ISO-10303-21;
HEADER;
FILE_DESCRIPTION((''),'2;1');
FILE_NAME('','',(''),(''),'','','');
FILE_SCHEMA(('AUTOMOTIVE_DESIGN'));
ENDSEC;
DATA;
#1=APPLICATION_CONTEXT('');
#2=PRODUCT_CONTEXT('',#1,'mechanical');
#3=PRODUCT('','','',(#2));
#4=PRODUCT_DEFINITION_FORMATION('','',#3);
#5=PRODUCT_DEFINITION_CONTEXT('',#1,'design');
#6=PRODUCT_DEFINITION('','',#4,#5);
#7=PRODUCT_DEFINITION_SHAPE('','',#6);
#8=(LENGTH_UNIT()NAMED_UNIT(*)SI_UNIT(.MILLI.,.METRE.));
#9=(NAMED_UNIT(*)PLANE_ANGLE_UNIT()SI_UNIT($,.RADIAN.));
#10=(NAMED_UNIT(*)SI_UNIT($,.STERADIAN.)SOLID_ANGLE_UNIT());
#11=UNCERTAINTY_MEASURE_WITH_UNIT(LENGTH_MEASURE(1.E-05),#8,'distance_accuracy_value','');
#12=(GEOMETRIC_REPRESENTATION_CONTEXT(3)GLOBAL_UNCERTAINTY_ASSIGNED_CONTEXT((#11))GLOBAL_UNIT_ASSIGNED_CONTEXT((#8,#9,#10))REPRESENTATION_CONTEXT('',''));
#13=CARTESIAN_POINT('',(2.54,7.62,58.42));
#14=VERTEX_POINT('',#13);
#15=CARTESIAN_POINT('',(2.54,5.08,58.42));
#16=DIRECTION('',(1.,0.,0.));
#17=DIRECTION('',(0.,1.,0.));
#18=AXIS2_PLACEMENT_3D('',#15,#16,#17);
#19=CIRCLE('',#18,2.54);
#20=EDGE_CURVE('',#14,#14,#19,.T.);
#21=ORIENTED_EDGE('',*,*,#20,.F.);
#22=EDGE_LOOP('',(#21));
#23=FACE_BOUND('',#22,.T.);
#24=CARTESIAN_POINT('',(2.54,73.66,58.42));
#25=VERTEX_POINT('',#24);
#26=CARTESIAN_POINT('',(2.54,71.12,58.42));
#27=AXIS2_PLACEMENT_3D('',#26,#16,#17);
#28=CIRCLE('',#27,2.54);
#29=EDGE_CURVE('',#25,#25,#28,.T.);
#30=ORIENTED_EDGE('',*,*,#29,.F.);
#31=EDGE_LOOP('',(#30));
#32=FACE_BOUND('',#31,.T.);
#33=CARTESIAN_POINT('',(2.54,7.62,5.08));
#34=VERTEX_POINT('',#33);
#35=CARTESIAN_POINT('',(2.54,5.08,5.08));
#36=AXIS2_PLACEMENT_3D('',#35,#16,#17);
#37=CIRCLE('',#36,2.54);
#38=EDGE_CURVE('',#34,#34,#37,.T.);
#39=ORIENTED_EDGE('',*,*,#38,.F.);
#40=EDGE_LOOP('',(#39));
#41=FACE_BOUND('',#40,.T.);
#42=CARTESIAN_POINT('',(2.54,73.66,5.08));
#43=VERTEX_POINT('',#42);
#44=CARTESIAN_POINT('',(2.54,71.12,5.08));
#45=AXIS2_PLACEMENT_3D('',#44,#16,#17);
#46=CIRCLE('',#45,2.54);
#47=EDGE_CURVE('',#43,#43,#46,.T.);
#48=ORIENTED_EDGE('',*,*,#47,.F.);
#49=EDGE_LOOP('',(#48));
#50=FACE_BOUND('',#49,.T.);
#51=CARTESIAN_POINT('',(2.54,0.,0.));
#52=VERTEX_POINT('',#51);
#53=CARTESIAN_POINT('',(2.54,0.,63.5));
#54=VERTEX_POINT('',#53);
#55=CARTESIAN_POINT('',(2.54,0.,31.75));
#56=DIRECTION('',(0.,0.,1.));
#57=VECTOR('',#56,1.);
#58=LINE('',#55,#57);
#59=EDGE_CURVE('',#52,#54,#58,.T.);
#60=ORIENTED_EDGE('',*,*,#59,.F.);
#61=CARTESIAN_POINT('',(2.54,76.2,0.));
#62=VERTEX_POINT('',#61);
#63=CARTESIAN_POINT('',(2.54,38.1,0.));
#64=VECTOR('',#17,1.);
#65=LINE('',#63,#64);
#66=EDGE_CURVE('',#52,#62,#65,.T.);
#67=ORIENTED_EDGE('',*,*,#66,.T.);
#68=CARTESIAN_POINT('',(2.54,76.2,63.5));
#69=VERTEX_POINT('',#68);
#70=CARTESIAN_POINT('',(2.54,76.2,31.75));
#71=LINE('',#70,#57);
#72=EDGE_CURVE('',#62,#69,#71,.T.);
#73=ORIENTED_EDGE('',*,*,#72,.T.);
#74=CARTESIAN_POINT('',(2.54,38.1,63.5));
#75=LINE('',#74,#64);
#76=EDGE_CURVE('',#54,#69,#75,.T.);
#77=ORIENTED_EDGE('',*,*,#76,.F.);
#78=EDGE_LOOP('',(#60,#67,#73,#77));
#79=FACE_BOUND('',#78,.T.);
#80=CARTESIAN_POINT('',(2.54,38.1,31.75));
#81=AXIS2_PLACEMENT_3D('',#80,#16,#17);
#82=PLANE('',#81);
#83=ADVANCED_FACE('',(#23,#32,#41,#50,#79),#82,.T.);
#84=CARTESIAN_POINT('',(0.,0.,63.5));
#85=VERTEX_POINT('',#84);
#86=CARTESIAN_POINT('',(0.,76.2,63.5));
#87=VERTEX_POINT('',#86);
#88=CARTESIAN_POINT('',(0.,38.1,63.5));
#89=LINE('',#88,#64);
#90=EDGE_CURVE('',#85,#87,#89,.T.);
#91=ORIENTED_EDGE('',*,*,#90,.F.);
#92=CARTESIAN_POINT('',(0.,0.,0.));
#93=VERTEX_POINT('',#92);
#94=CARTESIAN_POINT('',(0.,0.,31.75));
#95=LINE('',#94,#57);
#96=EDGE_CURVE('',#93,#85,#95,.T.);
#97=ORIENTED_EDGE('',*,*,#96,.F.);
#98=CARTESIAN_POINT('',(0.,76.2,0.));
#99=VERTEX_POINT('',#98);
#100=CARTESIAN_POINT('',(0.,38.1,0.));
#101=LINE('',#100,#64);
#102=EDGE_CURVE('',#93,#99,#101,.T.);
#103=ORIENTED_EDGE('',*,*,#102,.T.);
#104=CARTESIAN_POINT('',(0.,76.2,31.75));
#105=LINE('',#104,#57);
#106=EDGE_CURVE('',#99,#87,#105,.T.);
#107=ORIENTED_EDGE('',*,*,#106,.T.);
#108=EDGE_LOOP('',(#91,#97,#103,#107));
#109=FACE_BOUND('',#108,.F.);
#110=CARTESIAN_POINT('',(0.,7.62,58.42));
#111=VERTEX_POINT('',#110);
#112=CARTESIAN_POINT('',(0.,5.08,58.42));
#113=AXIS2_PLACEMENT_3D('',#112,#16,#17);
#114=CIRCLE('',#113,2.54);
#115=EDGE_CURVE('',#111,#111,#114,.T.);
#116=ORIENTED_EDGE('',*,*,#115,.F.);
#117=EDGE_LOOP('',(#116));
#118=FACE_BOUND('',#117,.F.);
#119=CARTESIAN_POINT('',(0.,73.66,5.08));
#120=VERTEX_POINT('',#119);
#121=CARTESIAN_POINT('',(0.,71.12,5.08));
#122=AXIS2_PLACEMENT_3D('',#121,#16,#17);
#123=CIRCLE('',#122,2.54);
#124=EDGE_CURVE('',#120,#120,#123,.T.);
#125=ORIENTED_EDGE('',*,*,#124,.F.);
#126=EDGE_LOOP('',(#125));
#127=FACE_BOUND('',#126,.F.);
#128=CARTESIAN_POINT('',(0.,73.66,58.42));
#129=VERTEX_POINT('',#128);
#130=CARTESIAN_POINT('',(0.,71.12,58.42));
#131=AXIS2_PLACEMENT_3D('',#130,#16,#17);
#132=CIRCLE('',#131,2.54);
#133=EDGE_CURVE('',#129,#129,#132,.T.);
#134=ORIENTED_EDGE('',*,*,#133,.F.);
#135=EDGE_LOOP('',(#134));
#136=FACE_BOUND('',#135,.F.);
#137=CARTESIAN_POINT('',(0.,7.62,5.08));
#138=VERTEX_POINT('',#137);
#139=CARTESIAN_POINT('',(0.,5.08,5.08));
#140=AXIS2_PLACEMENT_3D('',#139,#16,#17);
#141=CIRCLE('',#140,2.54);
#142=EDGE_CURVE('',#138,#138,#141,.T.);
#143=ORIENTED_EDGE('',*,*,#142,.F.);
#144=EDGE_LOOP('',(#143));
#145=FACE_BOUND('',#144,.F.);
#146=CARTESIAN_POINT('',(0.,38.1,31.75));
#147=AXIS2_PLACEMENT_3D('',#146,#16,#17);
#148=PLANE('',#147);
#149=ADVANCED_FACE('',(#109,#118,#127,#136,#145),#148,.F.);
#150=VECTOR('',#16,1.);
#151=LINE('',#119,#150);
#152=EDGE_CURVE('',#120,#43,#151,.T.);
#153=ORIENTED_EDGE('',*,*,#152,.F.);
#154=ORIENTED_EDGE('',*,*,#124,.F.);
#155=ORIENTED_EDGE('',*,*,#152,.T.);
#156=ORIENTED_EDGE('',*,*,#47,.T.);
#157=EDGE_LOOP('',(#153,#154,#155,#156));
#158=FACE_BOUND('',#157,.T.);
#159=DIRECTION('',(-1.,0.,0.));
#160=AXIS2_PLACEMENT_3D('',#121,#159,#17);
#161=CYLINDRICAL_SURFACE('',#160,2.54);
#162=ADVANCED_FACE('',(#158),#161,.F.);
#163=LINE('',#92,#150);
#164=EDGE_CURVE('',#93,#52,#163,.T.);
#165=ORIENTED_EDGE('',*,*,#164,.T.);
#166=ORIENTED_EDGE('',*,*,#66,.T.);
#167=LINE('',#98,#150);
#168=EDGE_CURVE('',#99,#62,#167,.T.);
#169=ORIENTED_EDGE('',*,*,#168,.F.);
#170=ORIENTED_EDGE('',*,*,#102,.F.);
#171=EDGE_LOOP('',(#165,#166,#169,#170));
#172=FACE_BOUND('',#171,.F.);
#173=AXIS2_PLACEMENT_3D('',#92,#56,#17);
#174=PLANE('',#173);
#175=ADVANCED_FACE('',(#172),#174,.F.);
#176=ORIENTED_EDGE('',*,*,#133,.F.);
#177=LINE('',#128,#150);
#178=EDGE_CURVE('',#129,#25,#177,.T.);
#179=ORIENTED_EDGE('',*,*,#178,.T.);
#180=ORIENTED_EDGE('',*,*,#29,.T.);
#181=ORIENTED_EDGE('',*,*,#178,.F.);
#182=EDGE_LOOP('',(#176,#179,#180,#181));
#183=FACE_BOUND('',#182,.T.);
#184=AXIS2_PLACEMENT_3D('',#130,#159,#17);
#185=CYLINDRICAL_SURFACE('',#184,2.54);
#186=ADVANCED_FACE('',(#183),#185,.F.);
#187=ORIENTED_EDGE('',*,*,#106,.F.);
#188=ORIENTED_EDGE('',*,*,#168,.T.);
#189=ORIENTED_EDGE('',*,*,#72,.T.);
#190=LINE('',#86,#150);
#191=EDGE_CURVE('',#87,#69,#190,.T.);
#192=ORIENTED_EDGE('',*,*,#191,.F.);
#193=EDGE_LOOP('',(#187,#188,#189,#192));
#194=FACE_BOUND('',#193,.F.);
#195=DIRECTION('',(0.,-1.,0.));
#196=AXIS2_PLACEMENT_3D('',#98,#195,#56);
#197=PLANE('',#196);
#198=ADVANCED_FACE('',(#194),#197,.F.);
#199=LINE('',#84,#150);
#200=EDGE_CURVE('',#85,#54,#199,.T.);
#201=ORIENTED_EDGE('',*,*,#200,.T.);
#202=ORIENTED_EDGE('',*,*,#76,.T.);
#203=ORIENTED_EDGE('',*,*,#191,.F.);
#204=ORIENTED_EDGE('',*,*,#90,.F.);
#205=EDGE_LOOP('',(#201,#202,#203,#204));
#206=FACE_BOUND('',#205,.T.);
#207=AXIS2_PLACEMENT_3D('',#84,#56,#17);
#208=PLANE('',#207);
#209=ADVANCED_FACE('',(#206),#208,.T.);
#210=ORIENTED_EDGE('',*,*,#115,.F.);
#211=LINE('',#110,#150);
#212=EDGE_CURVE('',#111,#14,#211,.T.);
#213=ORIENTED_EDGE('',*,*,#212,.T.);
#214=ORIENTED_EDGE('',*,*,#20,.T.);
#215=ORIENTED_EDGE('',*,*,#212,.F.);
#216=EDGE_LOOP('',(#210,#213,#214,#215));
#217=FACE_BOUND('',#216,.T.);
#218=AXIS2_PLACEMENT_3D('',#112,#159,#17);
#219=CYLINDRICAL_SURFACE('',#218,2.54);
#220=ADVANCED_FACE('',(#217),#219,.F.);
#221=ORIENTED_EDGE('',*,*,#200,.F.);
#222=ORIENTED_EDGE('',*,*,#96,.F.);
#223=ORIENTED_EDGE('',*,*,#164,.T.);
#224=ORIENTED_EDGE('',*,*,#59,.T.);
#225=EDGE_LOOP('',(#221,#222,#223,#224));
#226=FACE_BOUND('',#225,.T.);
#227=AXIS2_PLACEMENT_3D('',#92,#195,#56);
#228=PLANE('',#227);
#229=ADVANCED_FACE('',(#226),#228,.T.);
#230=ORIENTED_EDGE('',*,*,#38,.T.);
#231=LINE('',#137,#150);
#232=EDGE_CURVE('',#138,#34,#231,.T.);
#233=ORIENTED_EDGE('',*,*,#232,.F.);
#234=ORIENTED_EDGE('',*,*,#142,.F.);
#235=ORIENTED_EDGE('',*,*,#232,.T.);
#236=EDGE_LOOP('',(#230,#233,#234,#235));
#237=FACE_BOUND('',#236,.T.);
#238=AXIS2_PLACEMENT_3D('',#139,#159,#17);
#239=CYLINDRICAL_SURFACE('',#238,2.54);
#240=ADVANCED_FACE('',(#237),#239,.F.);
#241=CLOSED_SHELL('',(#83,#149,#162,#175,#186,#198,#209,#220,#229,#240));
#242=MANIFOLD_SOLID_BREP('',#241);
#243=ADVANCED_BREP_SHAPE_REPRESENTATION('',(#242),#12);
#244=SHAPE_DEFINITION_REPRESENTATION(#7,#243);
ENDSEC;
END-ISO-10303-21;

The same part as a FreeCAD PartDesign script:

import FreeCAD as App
import Part
import Sketcher

V = App.Vector
Q = App.Units.Quantity

doc = App.newDocument("Part")
body = doc.addObject("PartDesign::Body", "Body")

# Sketch on YZ plane
sketch1 = body.newObject("Sketcher::SketchObject", "Sketch")
sketch1.AttachmentSupport = (doc.getObject("YZ_Plane"), [""])
sketch1.MapMode = "FlatFace"
sketch1.addGeometry(Part.LineSegment(V(0, 63.5, 0), V(0, 0, 0)), False)
sketch1.addGeometry(Part.LineSegment(V(0, 0, 0), V(76.2, 0, 0)), False)
sketch1.addGeometry(Part.LineSegment(V(76.2, 0, 0), V(76.2, 63.5, 0)), False)
sketch1.addGeometry(Part.LineSegment(V(76.2, 63.5, 0), V(0, 63.5, 0)), False)
sketch1.addGeometry(Part.Circle(V(5.1, 5.1, 0), V(0, 0, 1), 2.5), False)
sketch1.addGeometry(Part.Circle(V(71.1, 5.1, 0), V(0, 0, 1), 2.5), False)
sketch1.addGeometry(Part.Circle(V(5.1, 58.4, 0), V(0, 0, 1), 2.5), False)
sketch1.addGeometry(Part.Circle(V(71.1, 58.4, 0), V(0, 0, 1), 2.5), False)
sketch1.addConstraint(Sketcher.Constraint("Coincident", 0, 2, 1, 1))
sketch1.addConstraint(Sketcher.Constraint("Coincident", 1, 2, 2, 1))
sketch1.addConstraint(Sketcher.Constraint("Coincident", 2, 2, 3, 1))
sketch1.addConstraint(Sketcher.Constraint("Coincident", 3, 2, 0, 1))
sketch1.addConstraint(Sketcher.Constraint("Vertical", 0))
sketch1.addConstraint(Sketcher.Constraint("Horizontal", 1))
sketch1.addConstraint(Sketcher.Constraint("Vertical", 2))
sketch1.addConstraint(Sketcher.Constraint("Horizontal", 3))
sketch1.addConstraint(Sketcher.Constraint("Coincident", 0, 2, -1, 1))
sketch1.addConstraint(Sketcher.Constraint("Equal", 4, 5))
sketch1.addConstraint(Sketcher.Constraint("Equal", 5, 6))
sketch1.addConstraint(Sketcher.Constraint("Equal", 6, 7))
sketch1.addConstraint(Sketcher.Constraint("Horizontal", 4, 3, 5, 3))
sketch1.addConstraint(Sketcher.Constraint("Horizontal", 6, 3, 7, 3))
sketch1.addConstraint(Sketcher.Constraint("Vertical", 4, 3, 6, 3))
sketch1.addConstraint(Sketcher.Constraint("Vertical", 5, 3, 7, 3))
sketch1.addConstraint(Sketcher.Constraint("Diameter", 4, Q("0.2 in")))
sketch1.addConstraint(Sketcher.Constraint("DistanceX", 1, 1, 1, 2, Q("3 in")))
sketch1.addConstraint(Sketcher.Constraint("DistanceY", 0, 2, 0, 1, Q("2.5 in")))
sketch1.addConstraint(Sketcher.Constraint("DistanceX", -1, 1, 4, 3, Q("0.2 in")))
sketch1.addConstraint(Sketcher.Constraint("DistanceY", -1, 1, 4, 3, Q("0.2 in")))
sketch1.addConstraint(Sketcher.Constraint("DistanceX", -1, 1, 5, 3, Q("2.8 in")))
sketch1.addConstraint(Sketcher.Constraint("DistanceY", -1, 1, 6, 3, Q("2.3 in")))
pad1 = body.newObject("PartDesign::Pad", "Pad")
pad1.Profile = sketch1
pad1.Length = Q("0.1 in")

doc.recompute()
